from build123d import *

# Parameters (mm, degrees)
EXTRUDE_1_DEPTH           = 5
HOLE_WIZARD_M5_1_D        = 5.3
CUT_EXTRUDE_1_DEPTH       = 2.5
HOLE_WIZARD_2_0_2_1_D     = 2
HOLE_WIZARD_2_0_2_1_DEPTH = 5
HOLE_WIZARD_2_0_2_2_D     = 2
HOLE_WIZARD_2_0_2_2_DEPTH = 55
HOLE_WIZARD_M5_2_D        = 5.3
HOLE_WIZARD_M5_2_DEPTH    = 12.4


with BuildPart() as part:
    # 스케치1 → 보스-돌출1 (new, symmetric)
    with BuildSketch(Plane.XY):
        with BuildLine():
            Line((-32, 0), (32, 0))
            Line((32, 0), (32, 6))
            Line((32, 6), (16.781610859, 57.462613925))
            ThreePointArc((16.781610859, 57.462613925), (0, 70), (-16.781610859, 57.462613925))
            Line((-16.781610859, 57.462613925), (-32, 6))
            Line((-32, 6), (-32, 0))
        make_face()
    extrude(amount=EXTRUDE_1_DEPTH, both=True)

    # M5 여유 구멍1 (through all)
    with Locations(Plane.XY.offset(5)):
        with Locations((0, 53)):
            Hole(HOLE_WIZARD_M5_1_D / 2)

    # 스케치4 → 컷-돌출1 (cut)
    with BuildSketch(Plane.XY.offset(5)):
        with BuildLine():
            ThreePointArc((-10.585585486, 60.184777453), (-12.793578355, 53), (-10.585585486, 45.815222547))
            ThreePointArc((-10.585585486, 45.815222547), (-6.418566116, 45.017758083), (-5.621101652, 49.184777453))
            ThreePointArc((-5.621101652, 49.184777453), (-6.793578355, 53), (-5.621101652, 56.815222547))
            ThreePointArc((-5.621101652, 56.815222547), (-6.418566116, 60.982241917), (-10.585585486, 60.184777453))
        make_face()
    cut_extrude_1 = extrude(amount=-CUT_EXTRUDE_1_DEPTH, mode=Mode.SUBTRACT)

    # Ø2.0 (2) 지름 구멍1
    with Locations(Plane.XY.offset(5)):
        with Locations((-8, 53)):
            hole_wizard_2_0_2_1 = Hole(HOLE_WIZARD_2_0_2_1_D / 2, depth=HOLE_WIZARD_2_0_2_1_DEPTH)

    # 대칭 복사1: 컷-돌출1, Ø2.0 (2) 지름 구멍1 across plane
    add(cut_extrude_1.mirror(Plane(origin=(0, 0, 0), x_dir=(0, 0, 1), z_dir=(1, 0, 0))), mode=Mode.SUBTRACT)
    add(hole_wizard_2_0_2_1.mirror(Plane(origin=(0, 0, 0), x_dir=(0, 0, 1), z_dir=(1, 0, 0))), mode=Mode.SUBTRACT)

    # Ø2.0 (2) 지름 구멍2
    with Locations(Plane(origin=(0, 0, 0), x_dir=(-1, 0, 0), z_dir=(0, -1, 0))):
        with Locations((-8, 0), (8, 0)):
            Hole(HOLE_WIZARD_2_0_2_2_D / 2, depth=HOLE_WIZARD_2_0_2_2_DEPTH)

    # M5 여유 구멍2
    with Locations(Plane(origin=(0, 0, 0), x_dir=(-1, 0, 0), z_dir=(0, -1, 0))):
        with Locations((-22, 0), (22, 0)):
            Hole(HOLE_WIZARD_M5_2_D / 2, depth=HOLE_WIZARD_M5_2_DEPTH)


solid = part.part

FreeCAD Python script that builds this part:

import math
import FreeCAD as App
import Part
import Sketcher

V = App.Vector
Q = App.Units.Quantity

doc = App.newDocument("Part")
body = doc.addObject("PartDesign::Body", "Body")

# Sketch on XY plane
sketch1 = body.newObject("Sketcher::SketchObject", "Sketch")
sketch1.AttachmentSupport = (doc.getObject("XY_Plane"), [""])
sketch1.MapMode = "FlatFace"
sketch1.addGeometry(Part.LineSegment(V(-32, 0, 0), V(32, 0, 0)), False)
sketch1.addGeometry(Part.LineSegment(V(32, 0, 0), V(32, 6, 0)), False)
sketch1.addGeometry(Part.LineSegment(V(32, 6, 0), V(17, 57, 0)), False)
sketch1.addGeometry(Part.ArcOfCircle(Part.Circle(V(0, 52, 0), V(0, 0, 1), 18), math.radians(16), math.radians(164)), False)
sketch1.addGeometry(Part.LineSegment(V(-17, 57, 0), V(-32, 6, 0)), False)
sketch1.addGeometry(Part.LineSegment(V(-32, 6, 0), V(-32, 0, 0)), False)
sketch1.addConstraint(Sketcher.Constraint("Coincident", 0, 2, 1, 1))
sketch1.addConstraint(Sketcher.Constraint("Coincident", 1, 2, 2, 1))
sketch1.addConstraint(Sketcher.Constraint("Tangent", 2, 2, 3, 1))
sketch1.addConstraint(Sketcher.Constraint("Tangent", 3, 2, 4, 1))
sketch1.addConstraint(Sketcher.Constraint("Coincident", 4, 2, 5, 1))
sketch1.addConstraint(Sketcher.Constraint("Coincident", 5, 2, 0, 1))
sketch1.addConstraint(Sketcher.Constraint("Horizontal", 0))
sketch1.addConstraint(Sketcher.Constraint("Vertical", 1))
sketch1.addConstraint(Sketcher.Constraint("Vertical", 5))
sketch1.addConstraint(Sketcher.Constraint("Symmetric", 0, 2, 5, 2, -1, 1))
sketch1.addConstraint(Sketcher.Constraint("Symmetric", 2, 2, 3, 2, -2))
sketch1.addConstraint(Sketcher.Constraint("Radius", 3, Q("17.5 mm")))
sketch1.addConstraint(Sketcher.Constraint("DistanceX", 0, 1, 0, 2, Q("64 mm")))
sketch1.addConstraint(Sketcher.Constraint("DistanceY", 1, 1, 1, 2, Q("6 mm")))
sketch1.addConstraint(Sketcher.Constraint("DistanceY", -1, 1, 3, 3, Q("52.5 mm")))
pad1 = body.newObject("PartDesign::Pad", "Pad")
pad1.Profile = sketch1
pad1.Length = 10
pad1.Midplane = True

# Sketch on XY plane
sketch2 = body.newObject("Sketcher::SketchObject", "Sketch001")
sketch2.AttachmentSupport = (doc.getObject("XY_Plane"), [""])
sketch2.MapMode = "FlatFace"
sketch2.AttachmentOffset = App.Placement(V(0, 0, 5), App.Rotation())
sketch2.addGeometry(Part.Circle(V(0, 53, 0), V(0, 0, 1), 2.6), False)
sketch2.addConstraint(Sketcher.Constraint("PointOnObject", 0, 3, -2))
sketch2.addConstraint(Sketcher.Constraint("Diameter", 0, Q("5.3 mm")))
sketch2.addConstraint(Sketcher.Constraint("DistanceY", -1, 1, 0, 3, Q("53 mm")))
doc.recompute()
hole = body.newObject("PartDesign::Hole", "Hole")
hole.Profile = sketch2
hole.ThreadType = "None"
hole.Diameter = 5.3
hole.DepthType = "ThroughAll"

# Sketch on XY plane
sketch3 = body.newObject("Sketcher::SketchObject", "Sketch002")
sketch3.AttachmentSupport = (doc.getObject("XY_Plane"), [""])
sketch3.MapMode = "FlatFace"
sketch3.AttachmentOffset = App.Placement(V(0, 0, 5), App.Rotation())
sketch3.addGeometry(Part.ArcOfCircle(Part.Circle(V(0, 53, 0), V(0, 0, 1), 12.8), math.radians(146), math.radians(214)), False)
sketch3.addGeometry(Part.ArcOfCircle(Part.Circle(V(-8.1, 47.5, 0), V(0, 0, 1), 3), math.radians(-146), math.radians(34)), False)
sketch3.addGeometry(Part.ArcOfCircle(Part.Circle(V(0, 53, 0), V(0, 0, 1), 6.8), math.radians(146), math.radians(214)), False)
sketch3.addGeometry(Part.ArcOfCircle(Part.Circle(V(-8.1, 58.5, 0), V(0, 0, 1), 3), math.radians(-34), math.radians(146)), False)
sketch3.addConstraint(Sketcher.Constraint("Tangent", 0, 2, 1, 1))
sketch3.addConstraint(Sketcher.Constraint("Tangent", 1, 2, 2, 2))
sketch3.addConstraint(Sketcher.Constraint("Tangent", 2, 1, 3, 1))
sketch3.addConstraint(Sketcher.Constraint("Tangent", 3, 2, 0, 1))
sketch3.addConstraint(Sketcher.Constraint("Coincident", 2, 3, 0, 3))
sketch3.addConstraint(Sketcher.Constraint("PointOnObject", 0, 3, -2))
sketch3.addConstraint(Sketcher.Constraint("Vertical", 1, 3, 3, 3))
sketch3.addConstraint(Sketcher.Constraint("Radius", 1, Q("3 mm")))
sketch3.addConstraint(Sketcher.Constraint("DistanceY", -1, 1, 0, 3, Q("53 mm")))
sketch3.addConstraint(Sketcher.Constraint("DistanceY", 1, 3, 3, 3, Q("11 mm")))
sketch3.addConstraint(Sketcher.Constraint("Radius", 0, Q("12.793578 mm")))
pocket1 = body.newObject("PartDesign::Pocket", "Pocket")
pocket1.Profile = sketch3
pocket1.Length = 2.5

# Sketch on XY plane
sketch4 = body.newObject("Sketcher::SketchObject", "Sketch003")
sketch4.AttachmentSupport = (doc.getObject("XY_Plane"), [""])
sketch4.MapMode = "FlatFace"
sketch4.AttachmentOffset = App.Placement(V(0, 0, 5), App.Rotation())
sketch4.addGeometry(Part.Circle(V(-8, 53, 0), V(0, 0, 1), 1), False)
sketch4.addConstraint(Sketcher.Constraint("Diameter", 0, Q("2 mm")))
sketch4.addConstraint(Sketcher.Constraint("DistanceX", 0, 3, -1, 1, Q("8 mm")))
sketch4.addConstraint(Sketcher.Constraint("DistanceY", -1, 1, 0, 3, Q("53 mm")))
doc.recompute()
hole2 = body.newObject("PartDesign::Hole", "Hole001")
hole2.Profile = sketch4
hole2.ThreadType = "None"
hole2.Diameter = 2
hole2.DepthType = "Dimension"
hole2.Depth = 5
hole2.DrillPoint = "Flat"
doc.recompute()

mirrored = body.newObject("PartDesign::Mirrored", "Mirrored")
mirrored.Originals = [pocket1, hole2]
mirrored.MirrorPlane = (doc.getObject("YZ_Plane"), [""])
body.Tip = mirrored

# Sketch on XZ plane
sketch5 = body.newObject("Sketcher::SketchObject", "Sketch004")
sketch5.AttachmentSupport = (doc.getObject("XZ_Plane"), [""])
sketch5.MapMode = "FlatFace"
sketch5.addGeometry(Part.Circle(V(8, 0, 0), V(0, 0, 1), 1), False)
sketch5.addGeometry(Part.Circle(V(-8, 0, 0), V(0, 0, 1), 1), False)
sketch5.addConstraint(Sketcher.Constraint("Equal", 0, 1))
sketch5.addConstraint(Sketcher.Constraint("Symmetric", 0, 3, 1, 3, -1, 1))
sketch5.addConstraint(Sketcher.Constraint("PointOnObject", 0, 3, -1))
sketch5.addConstraint(Sketcher.Constraint("Diameter", 0, Q("2 mm")))
sketch5.addConstraint(Sketcher.Constraint("DistanceX", -1, 1, 0, 3, Q("8 mm")))
doc.recompute()
hole3 = body.newObject("PartDesign::Hole", "Hole002")
hole3.Profile = sketch5
hole3.ThreadType = "None"
hole3.Diameter = 2
hole3.DepthType = "Dimension"
hole3.Depth = 55
hole3.DrillPoint = "Flat"

# Sketch on XZ plane
sketch6 = body.newObject("Sketcher::SketchObject", "Sketch005")
sketch6.AttachmentSupport = (doc.getObject("XZ_Plane"), [""])
sketch6.MapMode = "FlatFace"
sketch6.addGeometry(Part.Circle(V(22, 0, 0), V(0, 0, 1), 2.6), False)
sketch6.addGeometry(Part.Circle(V(-22, 0, 0), V(0, 0, 1), 2.6), False)
sketch6.addConstraint(Sketcher.Constraint("Equal", 0, 1))
sketch6.addConstraint(Sketcher.Constraint("Symmetric", 0, 3, 1, 3, -1, 1))
sketch6.addConstraint(Sketcher.Constraint("PointOnObject", 0, 3, -1))
sketch6.addConstraint(Sketcher.Constraint("Diameter", 0, Q("5.3 mm")))
sketch6.addConstraint(Sketcher.Constraint("DistanceX", -1, 1, 0, 3, Q("22 mm")))
doc.recompute()
hole4 = body.newObject("PartDesign::Hole", "Hole003")
hole4.Profile = sketch6
hole4.ThreadType = "None"
hole4.Diameter = 5.3
hole4.DepthType = "Dimension"
hole4.Depth = 12.4
hole4.DrillPoint = "Flat"

doc.recompute()
